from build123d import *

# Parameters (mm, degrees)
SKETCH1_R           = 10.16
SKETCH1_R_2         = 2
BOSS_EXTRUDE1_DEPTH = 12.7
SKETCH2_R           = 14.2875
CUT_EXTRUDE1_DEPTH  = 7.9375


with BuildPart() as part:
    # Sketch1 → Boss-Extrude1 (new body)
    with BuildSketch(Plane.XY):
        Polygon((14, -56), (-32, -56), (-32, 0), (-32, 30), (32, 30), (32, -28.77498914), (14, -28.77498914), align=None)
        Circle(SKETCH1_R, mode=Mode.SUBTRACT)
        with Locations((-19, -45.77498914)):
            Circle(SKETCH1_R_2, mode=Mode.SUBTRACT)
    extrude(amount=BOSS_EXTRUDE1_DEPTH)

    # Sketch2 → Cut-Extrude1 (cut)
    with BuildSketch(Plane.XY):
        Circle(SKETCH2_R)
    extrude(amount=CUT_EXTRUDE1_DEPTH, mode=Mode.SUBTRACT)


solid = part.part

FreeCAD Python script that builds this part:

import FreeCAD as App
import Part
import Sketcher

V = App.Vector

doc = App.newDocument("Part")
params = doc.addObject("Spreadsheet::Sheet", "Params")
for row, (alias, value) in enumerate([
    ("sketch1_diameter", "4 mm"),
    ("sketch1_diameter2", "20.32 mm"),
    ("sketch1_width", "46 mm"),
    ("sketch1_width2", "18 mm"),
    ("sketch1_height", "86 mm"),
    ("pad1_length", "12.7 mm"),
    ("pocket1_length", "7.9375 mm"),
], start=1):
    params.set(f"A{row}", alias)
    params.set(f"B{row}", "=" + value)
    params.setAlias(f"B{row}", alias)

body = doc.addObject("PartDesign::Body", "Body")

# Sketch on XY plane
sketch1 = doc.addObject("Sketcher::SketchObject", "Sketch")
body.addObject(sketch1)
sketch1.AttachmentSupport = (doc.XY_Plane, [""])
sketch1.MapMode = "FlatFace"
sketch1.addGeometry(Part.LineSegment(V(-32, -56, 0), V(14, -56, 0)), False)
sketch1.addGeometry(Part.LineSegment(V(14, -56, 0), V(14, -28.774989, 0)), False)
sketch1.addGeometry(Part.LineSegment(V(14, -28.774989, 0), V(32, -28.774989, 0)), False)
sketch1.addGeometry(Part.LineSegment(V(32, -28.774989, 0), V(32, 30, 0)), False)
sketch1.addGeometry(Part.LineSegment(V(32, 30, 0), V(-32, 30, 0)), False)
sketch1.addGeometry(Part.LineSegment(V(-32, 30, 0), V(-32, -56, 0)), False)
sketch1.addGeometry(Part.Circle(V(-19, -45.774989, 0), V(0, 0, 1), 2), False)
sketch1.addGeometry(Part.Circle(V(0, 0, 0), V(0, 0, 1), 10.16), False)
sketch1.addConstraint(Sketcher.Constraint("Coincident", 0, 2, 1, 1))
sketch1.addConstraint(Sketcher.Constraint("Coincident", 1, 2, 2, 1))
sketch1.addConstraint(Sketcher.Constraint("Coincident", 2, 2, 3, 1))
sketch1.addConstraint(Sketcher.Constraint("Coincident", 3, 2, 4, 1))
sketch1.addConstraint(Sketcher.Constraint("Coincident", 4, 2, 5, 1))
sketch1.addConstraint(Sketcher.Constraint("Coincident", 5, 2, 0, 1))
sketch1.addConstraint(Sketcher.Constraint("Horizontal", 0))
sketch1.addConstraint(Sketcher.Constraint("Vertical", 1))
sketch1.addConstraint(Sketcher.Constraint("Horizontal", 2))
sketch1.addConstraint(Sketcher.Constraint("Vertical", 3))
sketch1.addConstraint(Sketcher.Constraint("Horizontal", 4))
sketch1.addConstraint(Sketcher.Constraint("Vertical", 5))
sketch1.addConstraint(Sketcher.Constraint("Coincident", 7, 3, -1, 1))
sketch1.addConstraint(Sketcher.Constraint("Diameter", 6, 4.0))
sketch1.addConstraint(Sketcher.Constraint("Diameter", 7, 20.32))
sketch1.addConstraint(Sketcher.Constraint("DistanceX", 0, 1, 0, 2, 46.0))
sketch1.addConstraint(Sketcher.Constraint("DistanceX", 2, 1, 2, 2, 18.0))
sketch1.addConstraint(Sketcher.Constraint("DistanceY", 5, 2, 5, 1, 86.0))
sketch1.addConstraint(Sketcher.Constraint("DistanceX", 6, 3, -1, 1, 19.0))
sketch1.addConstraint(Sketcher.Constraint("DistanceX", -1, 1, 0, 2, 14.0))
sketch1.addConstraint(Sketcher.Constraint("DistanceY", 0, 2, -1, 1, 56.0))
sketch1.addConstraint(Sketcher.Constraint("DistanceY", 6, 3, 1, 2, 17.0))
sketch1.addConstraint(Sketcher.Constraint("DistanceY", 1, 1, 1, 2, 27.225011))
sketch1.setExpression("Constraints[13]", "Params.sketch1_diameter")
sketch1.setExpression("Constraints[14]", "Params.sketch1_diameter2")
sketch1.setExpression("Constraints[15]", "Params.sketch1_width")
sketch1.setExpression("Constraints[16]", "Params.sketch1_width2")
sketch1.setExpression("Constraints[17]", "Params.sketch1_height")
pad1 = doc.addObject("PartDesign::Pad", "Pad")
body.addObject(pad1)
pad1.Profile = sketch1
pad1.setExpression("Length", "Params.pad1_length")

# Sketch on XY plane
sketch2 = doc.addObject("Sketcher::SketchObject", "Sketch001")
body.addObject(sketch2)
sketch2.AttachmentSupport = (doc.XY_Plane, [""])
sketch2.MapMode = "FlatFace"
sketch2.addGeometry(Part.Circle(V(0, 0, 0), V(0, 0, 1), 14.2875), False)
sketch2.addConstraint(Sketcher.Constraint("Coincident", 0, 3, -1, 1))
sketch2.addConstraint(Sketcher.Constraint("Diameter", 0, 28.575))
pocket1 = doc.addObject("PartDesign::Pocket", "Pocket")
body.addObject(pocket1)
pocket1.Profile = sketch2
pocket1.setExpression("Length", "Params.pocket1_length")
pocket1.Reversed = True

doc.recompute()
